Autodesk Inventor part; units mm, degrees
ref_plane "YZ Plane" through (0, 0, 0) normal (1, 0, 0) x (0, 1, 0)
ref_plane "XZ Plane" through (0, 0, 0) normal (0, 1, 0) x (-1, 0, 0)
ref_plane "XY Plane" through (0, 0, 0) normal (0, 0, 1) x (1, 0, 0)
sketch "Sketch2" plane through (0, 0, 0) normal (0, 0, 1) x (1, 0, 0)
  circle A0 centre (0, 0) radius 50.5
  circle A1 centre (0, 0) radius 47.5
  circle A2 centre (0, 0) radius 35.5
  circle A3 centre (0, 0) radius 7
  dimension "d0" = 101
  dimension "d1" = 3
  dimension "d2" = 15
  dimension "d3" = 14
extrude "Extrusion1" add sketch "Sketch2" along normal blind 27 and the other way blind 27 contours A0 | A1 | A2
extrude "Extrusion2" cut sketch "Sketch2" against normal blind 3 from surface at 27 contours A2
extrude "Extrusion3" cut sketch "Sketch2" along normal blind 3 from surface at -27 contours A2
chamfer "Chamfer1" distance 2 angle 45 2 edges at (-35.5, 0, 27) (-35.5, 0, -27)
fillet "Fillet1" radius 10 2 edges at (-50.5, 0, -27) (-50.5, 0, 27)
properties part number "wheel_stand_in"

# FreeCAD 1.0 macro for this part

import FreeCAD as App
import Part
import Sketcher

V = App.Vector


def edges_at(feature, points):
    """Names of the edges that pass closest to the given points."""
    edges = feature.Shape.Edges
    near = lambda p: min(range(len(edges)), key=lambda i: edges[i].distToShape(Part.Vertex(*p))[0])
    return sorted({f"Edge{near(p) + 1}" for p in points})

doc = App.newDocument("Part")
body = doc.addObject("PartDesign::Body", "Body")

# Sketch on XY plane
sketch1 = body.newObject("Sketcher::SketchObject", "Sketch")
sketch1.AttachmentSupport = (doc.getObject("XY_Plane"), [""])
sketch1.MapMode = "FlatFace"
sketch1.addGeometry(Part.Circle(V(0, 0, 0), V(0, 0, 1), 50.5), False)
sketch1.addGeometry(Part.Circle(V(0, 0, 0), V(0, 0, 1), 7), False)
sketch1.addConstraint(Sketcher.Constraint("Coincident", 0, 3, -1, 1))
sketch1.addConstraint(Sketcher.Constraint("Coincident", 1, 3, -1, 1))
sketch1.addConstraint(Sketcher.Constraint("Diameter", 0, 101.0))
sketch1.addConstraint(Sketcher.Constraint("Diameter", 1, 14.0))
pad1 = body.newObject("PartDesign::Pad", "Pad")
pad1.Profile = sketch1
pad1.Type = "TwoLengths"
pad1.Length = 27
pad1.Length2 = 27

# Sketch on XY plane
sketch2 = body.newObject("Sketcher::SketchObject", "Sketch001")
sketch2.AttachmentSupport = (doc.getObject("XY_Plane"), [""])
sketch2.MapMode = "FlatFace"
sketch2.AttachmentOffset = App.Placement(V(0, 0, 27), App.Rotation())
sketch2.addGeometry(Part.Circle(V(0, 0, 0), V(0, 0, 1), 35.5), False)
sketch2.addGeometry(Part.Circle(V(0, 0, 0), V(0, 0, 1), 7), False)
sketch2.addConstraint(Sketcher.Constraint("Coincident", 0, 3, -1, 1))
sketch2.addConstraint(Sketcher.Constraint("Coincident", 1, 3, -1, 1))
sketch2.addConstraint(Sketcher.Constraint("Diameter", 1, 14.0))
sketch2.addConstraint(Sketcher.Constraint("Diameter", 0, 71.0))
pocket1 = body.newObject("PartDesign::Pocket", "Pocket")
pocket1.Profile = sketch2
pocket1.Length = 3

# Sketch on XY plane
sketch3 = body.newObject("Sketcher::SketchObject", "Sketch002")
sketch3.AttachmentSupport = (doc.getObject("XY_Plane"), [""])
sketch3.MapMode = "FlatFace"
sketch3.AttachmentOffset = App.Placement(V(0, 0, -27), App.Rotation())
sketch3.addGeometry(Part.Circle(V(0, 0, 0), V(0, 0, 1), 35.5), False)
sketch3.addGeometry(Part.Circle(V(0, 0, 0), V(0, 0, 1), 7), False)
sketch3.addConstraint(Sketcher.Constraint("Coincident", 0, 3, -1, 1))
sketch3.addConstraint(Sketcher.Constraint("Coincident", 1, 3, -1, 1))
sketch3.addConstraint(Sketcher.Constraint("Diameter", 1, 14.0))
sketch3.addConstraint(Sketcher.Constraint("Diameter", 0, 71.0))
pocket2 = body.newObject("PartDesign::Pocket", "Pocket001")
pocket2.Profile = sketch3
pocket2.Length = 3
pocket2.Reversed = True
doc.recompute()

chamfer = body.newObject("PartDesign::Chamfer", "Chamfer")
chamfer.Base = (pocket2, edges_at(pocket2, [(-35.5, 0, 27), (-35.5, 0, -27)]))
chamfer.Size = 2
doc.recompute()

fillet = body.newObject("PartDesign::Fillet", "Fillet")
fillet.Base = (chamfer, edges_at(chamfer, [(-50.5, 0, -27), (-50.5, 0, 27)]))
fillet.Radius = 10

doc.recompute()
